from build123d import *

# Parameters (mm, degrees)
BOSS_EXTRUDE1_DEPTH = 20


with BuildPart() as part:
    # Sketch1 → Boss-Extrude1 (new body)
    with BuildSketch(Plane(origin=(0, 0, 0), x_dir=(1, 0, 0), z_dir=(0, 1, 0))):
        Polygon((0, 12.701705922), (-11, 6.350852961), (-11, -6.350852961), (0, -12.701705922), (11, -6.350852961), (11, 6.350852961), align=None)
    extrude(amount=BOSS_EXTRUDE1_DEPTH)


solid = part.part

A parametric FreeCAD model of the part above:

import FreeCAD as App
import Part
import Sketcher

V = App.Vector
Q = App.Units.Quantity


def add_polygon(sketch, points):
    """Adds a closed chain of lines whose ends are joined by coincident constraints."""
    first, n = sketch.GeometryCount, len(points)
    for a, b in zip(points, points[1:] + points[:1]):
        sketch.addGeometry(Part.LineSegment(App.Vector(*a, 0), App.Vector(*b, 0)), False)
    for i in range(n):
        sketch.addConstraint(Sketcher.Constraint("Coincident", first + i, 2, first + (i + 1) % n, 1))

doc = App.newDocument("Part")
body = doc.addObject("PartDesign::Body", "Body")

sketch1 = body.newObject("Sketcher::SketchObject", "Sketch")
sketch1.AttachmentSupport = (doc.getObject("XZ_Plane"), [""])
sketch1.MapMode = "FlatFace"
add_polygon(sketch1, [(0, -12.701706), (-11, -6.350853), (-11, 6.350853), (0, 12.701706), (11, 6.350853), (11, -6.350853)])
sketch1.addConstraint([
    Sketcher.Constraint("Vertical", 1),
    Sketcher.Constraint("Vertical", 4),
    Sketcher.Constraint("Symmetric", 0, 2, 3, 2, -1, 1),
    Sketcher.Constraint("Symmetric", 2, 2, 5, 2, -1, 1),
    Sketcher.Constraint("PointOnObject", 2, 2, -2),
    Sketcher.Constraint("Parallel", 2, 5),
    Sketcher.Constraint("Horizontal", 1, 2, 3, 2),
    Sketcher.Constraint("Angle", 0, Q("150 deg")),
    Sketcher.Constraint("DistanceX", 0, 2, -1, 1, 11.0),
    Sketcher.Constraint("DistanceY", 1, 1, 1, 2, 12.701706),
])
pad1 = body.newObject("PartDesign::Pad", "Pad")
pad1.Profile = sketch1
pad1.Length = 20
pad1.Reversed = True

doc.recompute()
